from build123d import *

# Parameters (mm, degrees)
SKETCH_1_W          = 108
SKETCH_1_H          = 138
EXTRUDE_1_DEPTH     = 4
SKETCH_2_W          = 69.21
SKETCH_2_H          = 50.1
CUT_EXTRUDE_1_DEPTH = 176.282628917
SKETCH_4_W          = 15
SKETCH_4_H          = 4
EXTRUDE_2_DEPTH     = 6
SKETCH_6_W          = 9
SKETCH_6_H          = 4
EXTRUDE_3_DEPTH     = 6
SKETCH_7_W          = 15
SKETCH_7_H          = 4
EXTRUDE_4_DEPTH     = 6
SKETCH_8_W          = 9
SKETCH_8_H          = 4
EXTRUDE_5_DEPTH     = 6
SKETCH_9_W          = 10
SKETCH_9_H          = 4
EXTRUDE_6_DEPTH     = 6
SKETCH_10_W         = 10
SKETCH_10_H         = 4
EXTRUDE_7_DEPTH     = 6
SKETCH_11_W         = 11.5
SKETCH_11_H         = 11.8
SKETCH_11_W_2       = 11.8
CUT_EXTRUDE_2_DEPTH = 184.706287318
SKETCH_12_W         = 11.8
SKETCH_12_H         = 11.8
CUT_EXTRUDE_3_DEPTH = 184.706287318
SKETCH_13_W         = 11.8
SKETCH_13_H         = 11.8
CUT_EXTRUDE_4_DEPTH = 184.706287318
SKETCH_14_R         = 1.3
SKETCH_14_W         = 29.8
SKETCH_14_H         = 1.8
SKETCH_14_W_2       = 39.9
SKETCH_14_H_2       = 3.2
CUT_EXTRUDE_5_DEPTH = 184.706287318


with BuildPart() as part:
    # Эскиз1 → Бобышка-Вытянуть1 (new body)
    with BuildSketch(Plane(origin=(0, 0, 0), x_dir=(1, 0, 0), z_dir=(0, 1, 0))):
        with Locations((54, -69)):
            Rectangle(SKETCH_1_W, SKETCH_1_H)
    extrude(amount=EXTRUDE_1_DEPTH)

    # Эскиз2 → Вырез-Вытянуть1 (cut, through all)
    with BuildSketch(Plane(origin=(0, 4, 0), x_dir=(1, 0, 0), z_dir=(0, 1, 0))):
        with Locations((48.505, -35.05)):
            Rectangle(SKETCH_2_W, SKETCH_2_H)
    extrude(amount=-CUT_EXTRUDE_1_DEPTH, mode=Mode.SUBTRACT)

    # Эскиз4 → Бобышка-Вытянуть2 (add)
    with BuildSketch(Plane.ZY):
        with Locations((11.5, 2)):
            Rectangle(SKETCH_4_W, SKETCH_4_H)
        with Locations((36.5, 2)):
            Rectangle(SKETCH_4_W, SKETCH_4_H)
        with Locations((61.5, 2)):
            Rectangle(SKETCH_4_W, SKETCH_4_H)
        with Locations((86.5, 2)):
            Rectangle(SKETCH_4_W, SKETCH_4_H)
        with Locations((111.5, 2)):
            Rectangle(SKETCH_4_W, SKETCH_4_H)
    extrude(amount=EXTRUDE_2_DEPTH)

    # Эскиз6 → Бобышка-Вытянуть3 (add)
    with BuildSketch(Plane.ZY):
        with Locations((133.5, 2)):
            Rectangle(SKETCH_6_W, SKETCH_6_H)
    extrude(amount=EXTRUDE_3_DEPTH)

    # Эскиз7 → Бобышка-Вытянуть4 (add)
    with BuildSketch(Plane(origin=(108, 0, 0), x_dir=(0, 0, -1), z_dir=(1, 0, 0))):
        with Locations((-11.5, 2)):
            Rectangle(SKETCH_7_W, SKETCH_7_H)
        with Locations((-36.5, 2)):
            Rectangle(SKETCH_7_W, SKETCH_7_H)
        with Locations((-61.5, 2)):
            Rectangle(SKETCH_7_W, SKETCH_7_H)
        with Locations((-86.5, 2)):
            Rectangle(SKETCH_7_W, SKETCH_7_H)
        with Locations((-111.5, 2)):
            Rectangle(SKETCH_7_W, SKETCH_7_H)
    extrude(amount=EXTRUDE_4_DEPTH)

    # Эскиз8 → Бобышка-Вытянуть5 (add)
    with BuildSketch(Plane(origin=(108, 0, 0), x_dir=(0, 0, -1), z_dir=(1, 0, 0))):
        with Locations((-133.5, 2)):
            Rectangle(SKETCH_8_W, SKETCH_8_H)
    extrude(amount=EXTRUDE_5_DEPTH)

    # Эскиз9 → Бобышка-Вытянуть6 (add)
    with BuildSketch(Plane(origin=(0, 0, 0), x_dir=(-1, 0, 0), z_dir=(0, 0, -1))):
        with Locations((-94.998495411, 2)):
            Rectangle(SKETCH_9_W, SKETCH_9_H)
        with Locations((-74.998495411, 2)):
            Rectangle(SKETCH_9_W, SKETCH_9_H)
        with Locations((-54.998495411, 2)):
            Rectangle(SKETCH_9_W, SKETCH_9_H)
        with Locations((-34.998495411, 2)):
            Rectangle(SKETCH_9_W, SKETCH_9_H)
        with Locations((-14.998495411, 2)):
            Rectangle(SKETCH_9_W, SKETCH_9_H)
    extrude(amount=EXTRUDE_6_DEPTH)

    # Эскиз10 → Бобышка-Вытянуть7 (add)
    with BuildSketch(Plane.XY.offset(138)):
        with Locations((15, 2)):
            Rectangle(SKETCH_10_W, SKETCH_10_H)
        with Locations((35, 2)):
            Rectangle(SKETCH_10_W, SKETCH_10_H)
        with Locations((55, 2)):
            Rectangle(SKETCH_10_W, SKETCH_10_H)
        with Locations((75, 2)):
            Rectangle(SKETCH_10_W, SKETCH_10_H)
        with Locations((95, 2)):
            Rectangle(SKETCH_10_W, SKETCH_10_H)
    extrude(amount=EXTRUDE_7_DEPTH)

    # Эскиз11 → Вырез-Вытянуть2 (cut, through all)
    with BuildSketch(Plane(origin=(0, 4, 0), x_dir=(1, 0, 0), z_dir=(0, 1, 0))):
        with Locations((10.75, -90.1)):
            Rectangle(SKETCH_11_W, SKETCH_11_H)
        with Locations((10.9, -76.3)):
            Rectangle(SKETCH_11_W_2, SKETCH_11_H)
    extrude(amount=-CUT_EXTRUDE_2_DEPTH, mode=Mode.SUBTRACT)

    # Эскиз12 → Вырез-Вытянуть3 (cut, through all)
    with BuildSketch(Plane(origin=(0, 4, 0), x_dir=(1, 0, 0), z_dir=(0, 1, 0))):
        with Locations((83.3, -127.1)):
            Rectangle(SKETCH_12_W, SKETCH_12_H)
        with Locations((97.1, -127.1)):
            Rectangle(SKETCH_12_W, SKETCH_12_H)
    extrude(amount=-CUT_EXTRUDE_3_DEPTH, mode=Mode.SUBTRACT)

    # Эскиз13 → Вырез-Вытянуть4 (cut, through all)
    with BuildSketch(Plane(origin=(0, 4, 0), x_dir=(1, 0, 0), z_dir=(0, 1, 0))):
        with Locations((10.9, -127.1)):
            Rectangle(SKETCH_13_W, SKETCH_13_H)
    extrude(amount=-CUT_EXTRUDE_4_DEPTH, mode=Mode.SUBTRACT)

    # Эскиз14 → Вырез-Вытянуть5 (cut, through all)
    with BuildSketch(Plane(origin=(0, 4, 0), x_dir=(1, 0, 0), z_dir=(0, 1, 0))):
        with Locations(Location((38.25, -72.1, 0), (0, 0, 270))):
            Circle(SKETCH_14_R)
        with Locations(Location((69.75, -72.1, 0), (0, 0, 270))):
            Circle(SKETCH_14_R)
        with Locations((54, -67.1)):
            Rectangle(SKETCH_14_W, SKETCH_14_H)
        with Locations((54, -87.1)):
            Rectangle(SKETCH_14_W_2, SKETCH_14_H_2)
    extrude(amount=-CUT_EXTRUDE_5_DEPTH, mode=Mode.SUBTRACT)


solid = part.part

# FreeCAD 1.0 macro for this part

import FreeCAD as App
import Part
import Sketcher
Q = App.Units.Quantity


def add_polygon(sketch, points):
    """Adds a closed chain of lines whose ends are joined by coincident constraints."""
    first, n = sketch.GeometryCount, len(points)
    for a, b in zip(points, points[1:] + points[:1]):
        sketch.addGeometry(Part.LineSegment(App.Vector(*a, 0), App.Vector(*b, 0)), False)
    for i in range(n):
        sketch.addConstraint(Sketcher.Constraint("Coincident", first + i, 2, first + (i + 1) % n, 1))

doc = App.newDocument("Part")
params = doc.addObject("Spreadsheet::Sheet", "Params")
for row, (alias, value) in enumerate([
    ("sketch1_width", "108 mm"),
    ("sketch1_height", "138 mm"),
    ("pad1_length", "4 mm"),
    ("sketch2_height", "50.1 mm"),
    ("sketch2_width", "69.21 mm"),
    ("sketch3_width", "4 mm"),
    ("sketch3_height", "15 mm"),
    ("pad2_length", "6 mm"),
    ("sketch4_width", "4 mm"),
    ("sketch4_height", "9 mm"),
    ("pad3_length", "6 mm"),
    ("sketch5_width", "4 mm"),
    ("sketch5_height", "15 mm"),
    ("pad4_length", "6 mm"),
    ("sketch6_width", "4 mm"),
    ("sketch6_height", "9 mm"),
    ("pad5_length", "6 mm"),
    ("sketch7_width", "10 mm"),
    ("sketch7_height", "4 mm"),
    ("pad6_length", "6 mm"),
    ("sketch8_width", "10 mm"),
    ("sketch8_height", "4 mm"),
    ("pad7_length", "6 mm"),
    ("sketch9_width", "11.5 mm"),
    ("sketch9_width2", "11.8 mm"),
    ("sketch10_width", "11.8 mm"),
    ("sketch11_width", "11.8 mm"),
    ("sketch12_diameter", "2.6 mm"),
    ("sketch12_width", "29.8 mm"),
    ("sketch12_width2", "39.9 mm"),
    ("sketch12_height", "1.8 mm"),
    ("sketch12_height2", "3.2 mm"),
], start=1):
    params.set(f"A{row}", alias)
    params.set(f"B{row}", "=" + value)
    params.setAlias(f"B{row}", alias)

body = doc.addObject("PartDesign::Body", "Body")

sketch1 = doc.addObject("Sketcher::SketchObject", "Sketch")
body.addObject(sketch1)
sketch1.AttachmentSupport = (doc.XZ_Plane, [""])
sketch1.MapMode = "FlatFace"
add_polygon(sketch1, [(0, 0), (0, 138), (108, 138), (108, 0)])
sketch1.addConstraint([
    Sketcher.Constraint("Vertical", 0),
    Sketcher.Constraint("Horizontal", 1),
    Sketcher.Constraint("Vertical", 2),
    Sketcher.Constraint("Horizontal", 3),
    Sketcher.Constraint("Coincident", 3, 2, -1, 1),
    Sketcher.Constraint("DistanceX", 1, 1, 1, 2, Q("108 mm")),
    Sketcher.Constraint("DistanceY", 0, 1, 0, 2, Q("138 mm")),
])
sketch1.setExpression("Constraints[9]", "Params.sketch1_width")
sketch1.setExpression("Constraints[10]", "Params.sketch1_height")
pad1 = doc.addObject("PartDesign::Pad", "Pad")
body.addObject(pad1)
pad1.Profile = sketch1
pad1.setExpression("Length", "Params.pad1_length")
pad1.Reversed = True

sketch2 = doc.addObject("Sketcher::SketchObject", "Sketch001")
body.addObject(sketch2)
sketch2.AttachmentSupport = (doc.XZ_Plane, [""])
sketch2.MapMode = "FlatFace"
sketch2.AttachmentOffset = App.Placement(App.Vector(0, 0, -4), App.Rotation())
add_polygon(sketch2, [(14, 10), (14, 60), (83, 60), (83, 10)])
sketch2.addConstraint([
    Sketcher.Constraint("Vertical", 0),
    Sketcher.Constraint("Horizontal", 1),
    Sketcher.Constraint("Vertical", 2),
    Sketcher.Constraint("Horizontal", 3),
    Sketcher.Constraint("DistanceY", 0, 1, 0, 2, Q("50.1 mm")),
    Sketcher.Constraint("DistanceY", -1, 1, 2, 2, Q("10 mm")),
    Sketcher.Constraint("DistanceX", 1, 1, 1, 2, Q("69.21 mm")),
    Sketcher.Constraint("DistanceX", -1, 1, 0, 2, Q("13.9 mm")),
])
sketch2.setExpression("Constraints[8]", "Params.sketch2_height")
sketch2.setExpression("Constraints[10]", "Params.sketch2_width")
pocket1 = doc.addObject("PartDesign::Pocket", "Pocket")
body.addObject(pocket1)
pocket1.Profile = sketch2
pocket1.Type = "ThroughAll"
pocket1.Reversed = True

sketch3 = doc.addObject("Sketcher::SketchObject", "Sketch002")
body.addObject(sketch3)
sketch3.AttachmentSupport = (doc.YZ_Plane, [""])
sketch3.MapMode = "FlatFace"
add_polygon(sketch3, [(4, 4), (0, 4), (0, 19), (4, 19)])
add_polygon(sketch3, [(4, 29), (0, 29), (0, 44), (4, 44)])
add_polygon(sketch3, [(4, 54), (0, 54), (0, 69), (4, 69)])
add_polygon(sketch3, [(4, 79), (0, 79), (0, 94), (4, 94)])
add_polygon(sketch3, [(4, 104), (0, 104), (0, 119), (4, 119)])
sketch3.addConstraint([
    Sketcher.Constraint("Horizontal", 0),
    Sketcher.Constraint("Vertical", 1),
    Sketcher.Constraint("Horizontal", 2),
    Sketcher.Constraint("Vertical", 3),
    Sketcher.Constraint("Horizontal", 4),
    Sketcher.Constraint("Vertical", 5),
    Sketcher.Constraint("Horizontal", 6),
    Sketcher.Constraint("Vertical", 7),
    Sketcher.Constraint("Horizontal", 8),
    Sketcher.Constraint("Vertical", 9),
    Sketcher.Constraint("Horizontal", 10),
    Sketcher.Constraint("Vertical", 11),
    Sketcher.Constraint("Horizontal", 12),
    Sketcher.Constraint("Vertical", 13),
    Sketcher.Constraint("Horizontal", 14),
    Sketcher.Constraint("Vertical", 15),
    Sketcher.Constraint("Horizontal", 16),
    Sketcher.Constraint("Vertical", 17),
    Sketcher.Constraint("Horizontal", 18),
    Sketcher.Constraint("Vertical", 19),
    Sketcher.Constraint("PointOnObject", 0, 2, -2),
    Sketcher.Constraint("PointOnObject", 4, 2, -2),
    Sketcher.Constraint("PointOnObject", 8, 2, -2),
    Sketcher.Constraint("PointOnObject", 12, 2, -2),
    Sketcher.Constraint("PointOnObject", 16, 2, -2),
    Sketcher.Constraint("Vertical", 3, 2, 6, 2),
    Sketcher.Constraint("Vertical", 7, 2, 10, 2),
    Sketcher.Constraint("Vertical", 11, 2, 14, 2),
    Sketcher.Constraint("Vertical", 15, 2, 18, 2),
    Sketcher.Constraint("Equal", 3, 5),
    Sketcher.Constraint("Equal", 7, 9),
    Sketcher.Constraint("Equal", 11, 13),
    Sketcher.Constraint("Equal", 15, 17),
    Sketcher.Constraint("DistanceX", 0, 2, 0, 1, Q("4 mm")),
    Sketcher.Constraint("DistanceY", 1, 1, 1, 2, Q("15 mm")),
    Sketcher.Constraint("DistanceY", -1, 1, 0, 2, Q("4 mm")),
    Sketcher.Constraint("DistanceY", -1, 1, 4, 2, Q("29 mm")),
    Sketcher.Constraint("DistanceY", -1, 1, 8, 2, Q("54 mm")),
    Sketcher.Constraint("DistanceY", -1, 1, 12, 2, Q("79 mm")),
    Sketcher.Constraint("DistanceY", -1, 1, 16, 2, Q("104 mm")),
])
sketch3.setExpression("Constraints[53]", "Params.sketch3_width")
sketch3.setExpression("Constraints[54]", "Params.sketch3_height")
pad2 = doc.addObject("PartDesign::Pad", "Pad001")
body.addObject(pad2)
pad2.Profile = sketch3
pad2.setExpression("Length", "Params.pad2_length")
pad2.Reversed = True

sketch4 = doc.addObject("Sketcher::SketchObject", "Sketch003")
body.addObject(sketch4)
sketch4.AttachmentSupport = (doc.YZ_Plane, [""])
sketch4.MapMode = "FlatFace"
add_polygon(sketch4, [(4, 129), (0, 129), (0, 138), (4, 138)])
sketch4.addConstraint([
    Sketcher.Constraint("Horizontal", 0),
    Sketcher.Constraint("Vertical", 1),
    Sketcher.Constraint("Horizontal", 2),
    Sketcher.Constraint("Vertical", 3),
    Sketcher.Constraint("PointOnObject", 0, 2, -2),
    Sketcher.Constraint("DistanceX", 0, 2, 0, 1, Q("4 mm")),
    Sketcher.Constraint("DistanceY", 1, 1, 1, 2, Q("9 mm")),
    Sketcher.Constraint("DistanceY", -1, 1, 0, 2, Q("129 mm")),
])
sketch4.setExpression("Constraints[9]", "Params.sketch4_width")
sketch4.setExpression("Constraints[10]", "Params.sketch4_height")
pad3 = doc.addObject("PartDesign::Pad", "Pad002")
body.addObject(pad3)
pad3.Profile = sketch4
pad3.setExpression("Length", "Params.pad3_length")
pad3.Reversed = True

sketch5 = doc.addObject("Sketcher::SketchObject", "Sketch004")
body.addObject(sketch5)
sketch5.AttachmentSupport = (doc.YZ_Plane, [""])
sketch5.MapMode = "FlatFace"
sketch5.AttachmentOffset = App.Placement(App.Vector(0, 0, 108), App.Rotation())
add_polygon(sketch5, [(4, 19), (0, 19), (0, 4), (4, 4)])
add_polygon(sketch5, [(4, 44), (0, 44), (0, 29), (4, 29)])
add_polygon(sketch5, [(4, 69), (0, 69), (0, 54), (4, 54)])
add_polygon(sketch5, [(4, 94), (0, 94), (0, 79), (4, 79)])
add_polygon(sketch5, [(4, 119), (0, 119), (0, 104), (4, 104)])
sketch5.addConstraint([
    Sketcher.Constraint("Horizontal", 0),
    Sketcher.Constraint("Vertical", 1),
    Sketcher.Constraint("Horizontal", 2),
    Sketcher.Constraint("Vertical", 3),
    Sketcher.Constraint("Horizontal", 4),
    Sketcher.Constraint("Vertical", 5),
    Sketcher.Constraint("Horizontal", 6),
    Sketcher.Constraint("Vertical", 7),
    Sketcher.Constraint("Horizontal", 8),
    Sketcher.Constraint("Vertical", 9),
    Sketcher.Constraint("Horizontal", 10),
    Sketcher.Constraint("Vertical", 11),
    Sketcher.Constraint("Horizontal", 12),
    Sketcher.Constraint("Vertical", 13),
    Sketcher.Constraint("Horizontal", 14),
    Sketcher.Constraint("Vertical", 15),
    Sketcher.Constraint("Horizontal", 16),
    Sketcher.Constraint("Vertical", 17),
    Sketcher.Constraint("Horizontal", 18),
    Sketcher.Constraint("Vertical", 19),
    Sketcher.Constraint("PointOnObject", 0, 2, -2),
    Sketcher.Constraint("PointOnObject", 4, 2, -2),
    Sketcher.Constraint("PointOnObject", 8, 2, -2),
    Sketcher.Constraint("PointOnObject", 12, 2, -2),
    Sketcher.Constraint("PointOnObject", 16, 2, -2),
    Sketcher.Constraint("Vertical", 3, 2, 6, 2),
    Sketcher.Constraint("Vertical", 7, 2, 10, 2),
    Sketcher.Constraint("Vertical", 11, 2, 14, 2),
    Sketcher.Constraint("Vertical", 15, 2, 18, 2),
    Sketcher.Constraint("Equal", 3, 5),
    Sketcher.Constraint("Equal", 7, 9),
    Sketcher.Constraint("Equal", 11, 13),
    Sketcher.Constraint("Equal", 15, 17),
    Sketcher.Constraint("DistanceX", 0, 2, 0, 1, Q("4 mm")),
    Sketcher.Constraint("DistanceY", 1, 2, 1, 1, Q("15 mm")),
    Sketcher.Constraint("DistanceY", -1, 1, 0, 2, Q("19 mm")),
    Sketcher.Constraint("DistanceY", -1, 1, 4, 2, Q("44 mm")),
    Sketcher.Constraint("DistanceY", -1, 1, 8, 2, Q("69 mm")),
    Sketcher.Constraint("DistanceY", -1, 1, 12, 2, Q("94 mm")),
    Sketcher.Constraint("DistanceY", -1, 1, 16, 2, Q("119 mm")),
])
sketch5.setExpression("Constraints[53]", "Params.sketch5_width")
sketch5.setExpression("Constraints[54]", "Params.sketch5_height")
pad4 = doc.addObject("PartDesign::Pad", "Pad003")
body.addObject(pad4)
pad4.Profile = sketch5
pad4.setExpression("Length", "Params.pad4_length")

sketch6 = doc.addObject("Sketcher::SketchObject", "Sketch005")
body.addObject(sketch6)
sketch6.AttachmentSupport = (doc.YZ_Plane, [""])
sketch6.MapMode = "FlatFace"
sketch6.AttachmentOffset = App.Placement(App.Vector(0, 0, 108), App.Rotation())
add_polygon(sketch6, [(4, 138), (0, 138), (0, 129), (4, 129)])
sketch6.addConstraint([
    Sketcher.Constraint("Horizontal", 0),
    Sketcher.Constraint("Vertical", 1),
    Sketcher.Constraint("Horizontal", 2),
    Sketcher.Constraint("Vertical", 3),
    Sketcher.Constraint("PointOnObject", 0, 2, -2),
    Sketcher.Constraint("DistanceX", 0, 2, 0, 1, Q("4 mm")),
    Sketcher.Constraint("DistanceY", 1, 2, 1, 1, Q("9 mm")),
    Sketcher.Constraint("DistanceY", -1, 1, 0, 2, Q("138 mm")),
])
sketch6.setExpression("Constraints[9]", "Params.sketch6_width")
sketch6.setExpression("Constraints[10]", "Params.sketch6_height")
pad5 = doc.addObject("PartDesign::Pad", "Pad004")
body.addObject(pad5)
pad5.Profile = sketch6
pad5.setExpression("Length", "Params.pad5_length")

sketch7 = doc.addObject("Sketcher::SketchObject", "Sketch006")
body.addObject(sketch7)
sketch7.AttachmentSupport = (doc.XY_Plane, [""])
sketch7.MapMode = "FlatFace"
add_polygon(sketch7, [(100, 4), (100, 0), (90, 0), (90, 4)])
add_polygon(sketch7, [(80, 4), (80, 0), (70, 0), (70, 4)])
add_polygon(sketch7, [(60, 4), (60, 0), (50, 0), (50, 4)])
add_polygon(sketch7, [(40, 4), (40, 0), (30, 0), (30, 4)])
add_polygon(sketch7, [(20, 4), (20, 0), (10, 0), (10, 4)])
sketch7.addConstraint([
    Sketcher.Constraint("Vertical", 0),
    Sketcher.Constraint("Horizontal", 1),
    Sketcher.Constraint("Vertical", 2),
    Sketcher.Constraint("Horizontal", 3),
    Sketcher.Constraint("Vertical", 4),
    Sketcher.Constraint("Horizontal", 5),
    Sketcher.Constraint("Vertical", 6),
    Sketcher.Constraint("Horizontal", 7),
    Sketcher.Constraint("Vertical", 8),
    Sketcher.Constraint("Horizontal", 9),
    Sketcher.Constraint("Vertical", 10),
    Sketcher.Constraint("Horizontal", 11),
    Sketcher.Constraint("Vertical", 12),
    Sketcher.Constraint("Horizontal", 13),
    Sketcher.Constraint("Vertical", 14),
    Sketcher.Constraint("Horizontal", 15),
    Sketcher.Constraint("Vertical", 16),
    Sketcher.Constraint("Horizontal", 17),
    Sketcher.Constraint("Vertical", 18),
    Sketcher.Constraint("Horizontal", 19),
    Sketcher.Constraint("PointOnObject", 0, 2, -1),
    Sketcher.Constraint("PointOnObject", 4, 2, -1),
    Sketcher.Constraint("PointOnObject", 8, 2, -1),
    Sketcher.Constraint("PointOnObject", 12, 2, -1),
    Sketcher.Constraint("PointOnObject", 16, 2, -1),
    Sketcher.Constraint("Horizontal", 3, 2, 6, 2),
    Sketcher.Constraint("Horizontal", 7, 2, 10, 2),
    Sketcher.Constraint("Horizontal", 11, 2, 14, 2),
    Sketcher.Constraint("Horizontal", 15, 2, 18, 2),
    Sketcher.Constraint("Equal", 3, 5),
    Sketcher.Constraint("Equal", 7, 9),
    Sketcher.Constraint("Equal", 11, 13),
    Sketcher.Constraint("Equal", 15, 17),
    Sketcher.Constraint("DistanceX", 1, 2, 1, 1, Q("10 mm")),
    Sketcher.Constraint("DistanceY", 0, 2, 0, 1, Q("4 mm")),
    Sketcher.Constraint("DistanceX", 4, 2, 1, 2, Q("10 mm")),
    Sketcher.Constraint("DistanceX", 8, 2, 5, 2, Q("10 mm")),
    Sketcher.Constraint("DistanceX", 12, 2, 9, 2, Q("10 mm")),
    Sketcher.Constraint("DistanceX", 16, 2, 13, 2, Q("10 mm")),
    Sketcher.Constraint("DistanceX", -1, 1, 0, 2, Q("99.998495 mm")),
])
sketch7.setExpression("Constraints[53]", "Params.sketch7_width")
sketch7.setExpression("Constraints[54]", "Params.sketch7_height")
pad6 = doc.addObject("PartDesign::Pad", "Pad005")
body.addObject(pad6)
pad6.Profile = sketch7
pad6.setExpression("Length", "Params.pad6_length")
pad6.Reversed = True

sketch8 = doc.addObject("Sketcher::SketchObject", "Sketch007")
body.addObject(sketch8)
sketch8.AttachmentSupport = (doc.XY_Plane, [""])
sketch8.MapMode = "FlatFace"
sketch8.AttachmentOffset = App.Placement(App.Vector(0, 0, 138), App.Rotation())
add_polygon(sketch8, [(10, 4), (10, 0), (20, 0), (20, 4)])
add_polygon(sketch8, [(30, 4), (30, 0), (40, 0), (40, 4)])
add_polygon(sketch8, [(50, 4), (50, 0), (60, 0), (60, 4)])
add_polygon(sketch8, [(70, 4), (70, 0), (80, 0), (80, 4)])
add_polygon(sketch8, [(90, 4), (90, 0), (100, 0), (100, 4)])
sketch8.addConstraint([
    Sketcher.Constraint("Vertical", 0),
    Sketcher.Constraint("Horizontal", 1),
    Sketcher.Constraint("Vertical", 2),
    Sketcher.Constraint("Horizontal", 3),
    Sketcher.Constraint("Vertical", 4),
    Sketcher.Constraint("Horizontal", 5),
    Sketcher.Constraint("Vertical", 6),
    Sketcher.Constraint("Horizontal", 7),
    Sketcher.Constraint("Vertical", 8),
    Sketcher.Constraint("Horizontal", 9),
    Sketcher.Constraint("Vertical", 10),
    Sketcher.Constraint("Horizontal", 11),
    Sketcher.Constraint("Vertical", 12),
    Sketcher.Constraint("Horizontal", 13),
    Sketcher.Constraint("Vertical", 14),
    Sketcher.Constraint("Horizontal", 15),
    Sketcher.Constraint("Vertical", 16),
    Sketcher.Constraint("Horizontal", 17),
    Sketcher.Constraint("Vertical", 18),
    Sketcher.Constraint("Horizontal", 19),
    Sketcher.Constraint("PointOnObject", 0, 2, -1),
    Sketcher.Constraint("PointOnObject", 4, 2, -1),
    Sketcher.Constraint("PointOnObject", 8, 2, -1),
    Sketcher.Constraint("PointOnObject", 12, 2, -1),
    Sketcher.Constraint("PointOnObject", 16, 2, -1),
    Sketcher.Constraint("Horizontal", 3, 2, 6, 2),
    Sketcher.Constraint("Horizontal", 7, 2, 10, 2),
    Sketcher.Constraint("Horizontal", 11, 2, 14, 2),
    Sketcher.Constraint("Horizontal", 15, 2, 18, 2),
    Sketcher.Constraint("Equal", 3, 5),
    Sketcher.Constraint("Equal", 7, 9),
    Sketcher.Constraint("Equal", 11, 13),
    Sketcher.Constraint("Equal", 15, 17),
    Sketcher.Constraint("DistanceX", 1, 1, 1, 2, Q("10 mm")),
    Sketcher.Constraint("DistanceY", 0, 2, 0, 1, Q("4 mm")),
    Sketcher.Constraint("DistanceX", -1, 1, 0, 2, Q("10 mm")),
    Sketcher.Constraint("DistanceX", -1, 1, 4, 2, Q("30 mm")),
    Sketcher.Constraint("DistanceX", -1, 1, 8, 2, Q("50 mm")),
    Sketcher.Constraint("DistanceX", -1, 1, 12, 2, Q("70 mm")),
    Sketcher.Constraint("DistanceX", -1, 1, 16, 2, Q("90 mm")),
])
sketch8.setExpression("Constraints[53]", "Params.sketch8_width")
sketch8.setExpression("Constraints[54]", "Params.sketch8_height")
pad7 = doc.addObject("PartDesign::Pad", "Pad006")
body.addObject(pad7)
pad7.Profile = sketch8
pad7.setExpression("Length", "Params.pad7_length")

sketch9 = doc.addObject("Sketcher::SketchObject", "Sketch008")
body.addObject(sketch9)
sketch9.AttachmentSupport = (doc.XZ_Plane, [""])
sketch9.MapMode = "FlatFace"
sketch9.AttachmentOffset = App.Placement(App.Vector(0, 0, -4), App.Rotation())
add_polygon(sketch9, [(5, 84), (5, 96), (16, 96), (16, 84)])
add_polygon(sketch9, [(5, 70), (5, 82), (17, 82), (17, 70)])
sketch9.addConstraint([
    Sketcher.Constraint("Vertical", 0),
    Sketcher.Constraint("Horizontal", 1),
    Sketcher.Constraint("Vertical", 2),
    Sketcher.Constraint("Horizontal", 3),
    Sketcher.Constraint("Vertical", 4),
    Sketcher.Constraint("Horizontal", 5),
    Sketcher.Constraint("Vertical", 6),
    Sketcher.Constraint("Horizontal", 7),
    Sketcher.Constraint("Vertical", 3, 2, 4, 2),
    Sketcher.Constraint("Equal", 7, 0),
    Sketcher.Constraint("Equal", 2, 4),
    Sketcher.Constraint("DistanceX", 1, 1, 1, 2, Q("11.5 mm")),
    Sketcher.Constraint("DistanceX", 5, 1, 5, 2, Q("11.8 mm")),
    Sketcher.Constraint("DistanceX", -1, 1, 0, 2, Q("5 mm")),
    Sketcher.Constraint("DistanceY", -1, 1, 0, 2, Q("96 mm")),
    Sketcher.Constraint("DistanceY", 4, 2, 3, 2, Q("2 mm")),
])
sketch9.setExpression("Constraints[19]", "Params.sketch9_width")
sketch9.setExpression("Constraints[20]", "Params.sketch9_width2")
pocket2 = doc.addObject("PartDesign::Pocket", "Pocket001")
body.addObject(pocket2)
pocket2.Profile = sketch9
pocket2.Type = "ThroughAll"
pocket2.Reversed = True

sketch10 = doc.addObject("Sketcher::SketchObject", "Sketch009")
body.addObject(sketch10)
sketch10.AttachmentSupport = (doc.XZ_Plane, [""])
sketch10.MapMode = "FlatFace"
sketch10.AttachmentOffset = App.Placement(App.Vector(0, 0, -4), App.Rotation())
add_polygon(sketch10, [(77, 121), (77, 133), (89, 133), (89, 121)])
add_polygon(sketch10, [(91, 121), (91, 133), (103, 133), (103, 121)])
sketch10.addConstraint([
    Sketcher.Constraint("Vertical", 0),
    Sketcher.Constraint("Horizontal", 1),
    Sketcher.Constraint("Vertical", 2),
    Sketcher.Constraint("Horizontal", 3),
    Sketcher.Constraint("Vertical", 4),
    Sketcher.Constraint("Horizontal", 5),
    Sketcher.Constraint("Vertical", 6),
    Sketcher.Constraint("Horizontal", 7),
    Sketcher.Constraint("Horizontal", 1, 2, 4, 2),
    Sketcher.Constraint("Horizontal", 3, 2, 6, 2),
    Sketcher.Constraint("Equal", 3, 5),
    Sketcher.Constraint("Equal", 7, 0),
    Sketcher.Constraint("DistanceX", 1, 1, 1, 2, Q("11.8 mm")),
    Sketcher.Constraint("DistanceY", -1, 1, 0, 2, Q("133 mm")),
    Sketcher.Constraint("DistanceX", -1, 1, 5, 2, Q("103 mm")),
    Sketcher.Constraint("DistanceX", 1, 2, 4, 2, Q("2 mm")),
])
sketch10.setExpression("Constraints[20]", "Params.sketch10_width")
pocket3 = doc.addObject("PartDesign::Pocket", "Pocket002")
body.addObject(pocket3)
pocket3.Profile = sketch10
pocket3.Type = "ThroughAll"
pocket3.Reversed = True

sketch11 = doc.addObject("Sketcher::SketchObject", "Sketch010")
body.addObject(sketch11)
sketch11.AttachmentSupport = (doc.XZ_Plane, [""])
sketch11.MapMode = "FlatFace"
sketch11.AttachmentOffset = App.Placement(App.Vector(0, 0, -4), App.Rotation())
add_polygon(sketch11, [(5, 121), (5, 133), (17, 133), (17, 121)])
sketch11.addConstraint([
    Sketcher.Constraint("Vertical", 0),
    Sketcher.Constraint("Horizontal", 1),
    Sketcher.Constraint("Vertical", 2),
    Sketcher.Constraint("Horizontal", 3),
    Sketcher.Constraint("Equal", 3, 0),
    Sketcher.Constraint("DistanceX", 1, 1, 1, 2, Q("11.8 mm")),
    Sketcher.Constraint("DistanceX", -1, 1, 0, 2, Q("5 mm")),
    Sketcher.Constraint("DistanceY", -1, 1, 0, 2, Q("133 mm")),
])
sketch11.setExpression("Constraints[9]", "Params.sketch11_width")
pocket4 = doc.addObject("PartDesign::Pocket", "Pocket003")
body.addObject(pocket4)
pocket4.Profile = sketch11
pocket4.Type = "ThroughAll"
pocket4.Reversed = True

sketch12 = doc.addObject("Sketcher::SketchObject", "Sketch011")
body.addObject(sketch12)
sketch12.AttachmentSupport = (doc.XZ_Plane, [""])
sketch12.MapMode = "FlatFace"
sketch12.AttachmentOffset = App.Placement(App.Vector(0, 0, -4), App.Rotation())
sketch12.addGeometry(Part.Circle(App.Vector(38.2, 72.1, 0), App.Vector(0, 0, 1), 1.3), False)
sketch12.addGeometry(Part.Circle(App.Vector(69.8, 72.1, 0), App.Vector(0, 0, 1), 1.3), False)
add_polygon(sketch12, [(39.1, 66.2), (39.1, 68), (68.9, 68), (68.9, 66.2)])
add_polygon(sketch12, [(34, 85.5), (34, 88.7), (74, 88.7), (74, 85.5)])
sketch12.addConstraint([
    Sketcher.Constraint("Vertical", 2),
    Sketcher.Constraint("Horizontal", 3),
    Sketcher.Constraint("Vertical", 4),
    Sketcher.Constraint("Horizontal", 5),
    Sketcher.Constraint("Vertical", 6),
    Sketcher.Constraint("Horizontal", 7),
    Sketcher.Constraint("Vertical", 8),
    Sketcher.Constraint("Horizontal", 9),
    Sketcher.Constraint("Equal", 0, 1),
    Sketcher.Constraint("Horizontal", 0, 3, 1, 3),
    Sketcher.Constraint("Diameter", 0, Q("2.6 mm")),
    Sketcher.Constraint("DistanceX", 3, 1, 3, 2, Q("29.8 mm")),
    Sketcher.Constraint("DistanceX", 7, 1, 7, 2, Q("39.9 mm")),
    Sketcher.Constraint("DistanceY", 2, 1, 2, 2, Q("1.8 mm")),
    Sketcher.Constraint("DistanceY", 6, 1, 6, 2, Q("3.2 mm")),
    Sketcher.Constraint("DistanceY", -1, 1, 2, 2, Q("68 mm")),
    Sketcher.Constraint("DistanceY", -1, 1, 0, 3, Q("72.1 mm")),
    Sketcher.Constraint("DistanceX", -1, 1, 2, 2, Q("39.1 mm")),
    Sketcher.Constraint("DistanceY", -1, 1, 6, 2, Q("88.7 mm")),
    Sketcher.Constraint("DistanceX", 0, 3, 1, 3, Q("31.5 mm")),
    Sketcher.Constraint("DistanceX", 6, 2, 0, 3, Q("4.2 mm")),
    Sketcher.Constraint("DistanceX", -1, 1, 0, 3, Q("38.25 mm")),
])
sketch12.setExpression("Constraints[18]", "Params.sketch12_diameter")
sketch12.setExpression("Constraints[19]", "Params.sketch12_width")
sketch12.setExpression("Constraints[20]", "Params.sketch12_width2")
sketch12.setExpression("Constraints[21]", "Params.sketch12_height")
sketch12.setExpression("Constraints[22]", "Params.sketch12_height2")
pocket5 = doc.addObject("PartDesign::Pocket", "Pocket004")
body.addObject(pocket5)
pocket5.Profile = sketch12
pocket5.Type = "ThroughAll"
pocket5.Reversed = True

doc.recompute()
